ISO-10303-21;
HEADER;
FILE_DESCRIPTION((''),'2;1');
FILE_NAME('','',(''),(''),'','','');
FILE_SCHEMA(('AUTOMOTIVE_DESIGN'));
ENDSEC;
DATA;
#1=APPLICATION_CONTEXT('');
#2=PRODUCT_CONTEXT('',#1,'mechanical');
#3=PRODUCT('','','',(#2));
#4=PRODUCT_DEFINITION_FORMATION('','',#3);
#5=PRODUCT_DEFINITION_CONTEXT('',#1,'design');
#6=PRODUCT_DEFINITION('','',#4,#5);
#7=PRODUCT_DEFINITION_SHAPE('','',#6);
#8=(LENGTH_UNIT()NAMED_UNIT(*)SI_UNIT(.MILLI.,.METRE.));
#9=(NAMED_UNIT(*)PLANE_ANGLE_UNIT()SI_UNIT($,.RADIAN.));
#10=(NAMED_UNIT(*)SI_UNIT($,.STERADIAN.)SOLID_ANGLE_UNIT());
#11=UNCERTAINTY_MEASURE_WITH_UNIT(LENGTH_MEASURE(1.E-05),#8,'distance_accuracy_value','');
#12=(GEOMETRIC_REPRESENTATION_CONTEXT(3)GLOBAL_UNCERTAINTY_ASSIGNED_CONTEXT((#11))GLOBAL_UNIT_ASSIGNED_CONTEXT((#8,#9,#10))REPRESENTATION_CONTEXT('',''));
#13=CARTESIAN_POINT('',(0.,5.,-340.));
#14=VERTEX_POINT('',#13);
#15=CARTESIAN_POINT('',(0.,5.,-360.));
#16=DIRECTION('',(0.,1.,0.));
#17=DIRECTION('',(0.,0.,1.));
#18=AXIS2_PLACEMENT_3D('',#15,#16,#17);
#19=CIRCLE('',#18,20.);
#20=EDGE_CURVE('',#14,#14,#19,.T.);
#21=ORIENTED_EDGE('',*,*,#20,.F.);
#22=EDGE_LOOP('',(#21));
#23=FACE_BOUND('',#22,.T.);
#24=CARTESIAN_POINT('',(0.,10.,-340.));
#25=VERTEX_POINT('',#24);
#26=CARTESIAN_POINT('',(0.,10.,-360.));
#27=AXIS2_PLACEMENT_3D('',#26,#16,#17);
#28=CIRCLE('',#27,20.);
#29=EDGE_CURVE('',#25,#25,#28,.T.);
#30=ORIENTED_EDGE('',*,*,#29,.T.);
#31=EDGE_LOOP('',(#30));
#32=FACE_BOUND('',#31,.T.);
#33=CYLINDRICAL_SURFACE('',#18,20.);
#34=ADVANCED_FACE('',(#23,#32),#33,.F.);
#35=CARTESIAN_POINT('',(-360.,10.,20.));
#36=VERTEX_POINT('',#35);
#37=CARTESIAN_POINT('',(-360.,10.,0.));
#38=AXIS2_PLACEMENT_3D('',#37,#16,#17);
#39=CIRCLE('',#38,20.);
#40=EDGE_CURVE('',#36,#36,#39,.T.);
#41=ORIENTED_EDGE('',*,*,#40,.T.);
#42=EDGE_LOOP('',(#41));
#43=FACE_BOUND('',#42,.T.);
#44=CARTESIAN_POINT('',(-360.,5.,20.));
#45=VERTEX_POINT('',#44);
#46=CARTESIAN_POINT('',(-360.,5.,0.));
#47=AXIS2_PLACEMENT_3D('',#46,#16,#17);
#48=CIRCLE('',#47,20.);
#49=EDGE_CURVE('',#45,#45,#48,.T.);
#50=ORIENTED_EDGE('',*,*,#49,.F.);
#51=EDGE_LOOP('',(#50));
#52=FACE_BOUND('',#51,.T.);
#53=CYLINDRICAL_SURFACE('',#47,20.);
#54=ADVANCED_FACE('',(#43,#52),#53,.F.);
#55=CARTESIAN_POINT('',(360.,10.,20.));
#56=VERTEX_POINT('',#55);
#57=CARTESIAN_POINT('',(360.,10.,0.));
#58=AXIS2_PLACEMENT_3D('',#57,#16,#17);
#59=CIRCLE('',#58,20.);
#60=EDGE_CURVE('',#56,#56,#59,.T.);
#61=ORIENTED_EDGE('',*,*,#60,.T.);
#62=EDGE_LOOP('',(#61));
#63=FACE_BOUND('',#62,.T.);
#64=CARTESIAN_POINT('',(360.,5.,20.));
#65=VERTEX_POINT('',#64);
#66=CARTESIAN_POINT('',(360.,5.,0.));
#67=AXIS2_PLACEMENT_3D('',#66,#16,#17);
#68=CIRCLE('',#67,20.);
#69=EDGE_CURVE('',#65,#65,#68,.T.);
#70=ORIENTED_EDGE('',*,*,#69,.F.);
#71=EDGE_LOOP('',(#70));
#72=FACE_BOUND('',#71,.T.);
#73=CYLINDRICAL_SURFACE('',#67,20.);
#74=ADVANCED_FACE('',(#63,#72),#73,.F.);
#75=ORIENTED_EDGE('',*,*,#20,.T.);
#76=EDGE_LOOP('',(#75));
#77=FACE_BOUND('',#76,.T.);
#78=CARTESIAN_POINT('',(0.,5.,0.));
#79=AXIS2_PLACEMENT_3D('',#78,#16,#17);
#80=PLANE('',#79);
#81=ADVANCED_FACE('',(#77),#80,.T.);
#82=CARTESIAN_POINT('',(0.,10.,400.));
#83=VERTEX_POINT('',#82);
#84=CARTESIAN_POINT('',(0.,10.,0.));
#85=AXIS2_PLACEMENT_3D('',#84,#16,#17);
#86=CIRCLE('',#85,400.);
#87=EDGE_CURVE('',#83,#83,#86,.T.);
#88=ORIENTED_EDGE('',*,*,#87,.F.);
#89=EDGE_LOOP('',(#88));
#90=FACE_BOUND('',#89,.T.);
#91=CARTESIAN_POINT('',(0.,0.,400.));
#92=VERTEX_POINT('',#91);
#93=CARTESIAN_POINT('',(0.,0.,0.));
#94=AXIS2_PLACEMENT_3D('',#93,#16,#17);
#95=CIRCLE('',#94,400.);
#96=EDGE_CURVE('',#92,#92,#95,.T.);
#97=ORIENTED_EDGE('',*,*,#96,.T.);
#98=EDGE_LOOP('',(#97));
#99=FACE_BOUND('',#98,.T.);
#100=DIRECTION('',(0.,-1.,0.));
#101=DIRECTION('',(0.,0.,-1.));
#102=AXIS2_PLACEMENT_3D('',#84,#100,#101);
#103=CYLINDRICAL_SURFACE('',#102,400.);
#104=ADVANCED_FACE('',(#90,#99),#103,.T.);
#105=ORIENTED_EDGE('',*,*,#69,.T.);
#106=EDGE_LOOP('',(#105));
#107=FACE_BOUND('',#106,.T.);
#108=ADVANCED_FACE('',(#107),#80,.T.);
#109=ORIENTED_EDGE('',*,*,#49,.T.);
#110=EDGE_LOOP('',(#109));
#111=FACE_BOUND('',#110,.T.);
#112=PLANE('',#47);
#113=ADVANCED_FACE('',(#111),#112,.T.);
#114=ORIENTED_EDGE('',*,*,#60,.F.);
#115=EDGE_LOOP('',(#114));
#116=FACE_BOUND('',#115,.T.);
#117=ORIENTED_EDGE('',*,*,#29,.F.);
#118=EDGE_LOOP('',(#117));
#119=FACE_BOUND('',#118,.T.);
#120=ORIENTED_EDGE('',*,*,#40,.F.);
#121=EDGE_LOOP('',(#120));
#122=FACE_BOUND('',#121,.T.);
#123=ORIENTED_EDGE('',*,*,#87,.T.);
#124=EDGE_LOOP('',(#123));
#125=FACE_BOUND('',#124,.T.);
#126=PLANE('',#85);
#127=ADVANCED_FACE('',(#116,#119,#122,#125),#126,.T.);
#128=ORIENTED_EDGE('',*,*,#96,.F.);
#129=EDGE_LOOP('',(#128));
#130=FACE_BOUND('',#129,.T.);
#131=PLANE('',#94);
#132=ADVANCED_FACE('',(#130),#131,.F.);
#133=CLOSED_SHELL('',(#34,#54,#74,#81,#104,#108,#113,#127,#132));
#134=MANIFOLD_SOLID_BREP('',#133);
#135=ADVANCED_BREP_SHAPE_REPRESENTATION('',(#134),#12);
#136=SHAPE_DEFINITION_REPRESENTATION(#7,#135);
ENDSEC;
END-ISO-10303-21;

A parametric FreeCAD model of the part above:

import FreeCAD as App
import Part
import Sketcher

V = App.Vector
Q = App.Units.Quantity

doc = App.newDocument("Part")
params = doc.addObject("Spreadsheet::Sheet", "Params")
for row, (alias, value) in enumerate([
    ("sketch1_diameter", "800 mm"),
    ("pad1_length", "10 mm"),
    ("sketch2_diameter", "40 mm"),
    ("pocket1_length", "5 mm"),
], start=1):
    params.set(f"A{row}", alias)
    params.set(f"B{row}", "=" + value)
    params.setAlias(f"B{row}", alias)

body = doc.addObject("PartDesign::Body", "Body")

# Sketch on XZ plane
sketch1 = body.newObject("Sketcher::SketchObject", "Sketch")
sketch1.AttachmentSupport = (doc.getObject("XZ_Plane"), [""])
sketch1.MapMode = "FlatFace"
sketch1.addGeometry(Part.Circle(V(0, 0, 0), V(0, 0, 1), 400), False)
sketch1.addConstraint(Sketcher.Constraint("Coincident", 0, 3, -1, 1))
sketch1.addConstraint(Sketcher.Constraint("Diameter", 0, Q("800 mm")))
sketch1.setExpression("Constraints[1]", "Params.sketch1_diameter")
pad1 = body.newObject("PartDesign::Pad", "Pad")
pad1.Profile = sketch1
pad1.setExpression("Length", "Params.pad1_length")
pad1.Reversed = True

# Sketch on XZ plane
sketch2 = body.newObject("Sketcher::SketchObject", "Sketch001")
sketch2.AttachmentSupport = (doc.getObject("XZ_Plane"), [""])
sketch2.MapMode = "FlatFace"
sketch2.AttachmentOffset = App.Placement(V(0, 0, -10), App.Rotation())
sketch2.addGeometry(Part.Circle(V(360, 0, 0), V(0, 0, 1), 20), False)
sketch2.addGeometry(Part.Circle(V(-360, 0, 0), V(0, 0, 1), 20), False)
sketch2.addGeometry(Part.Circle(V(0, -360, 0), V(0, 0, 1), 20), False)
sketch2.addConstraint(Sketcher.Constraint("Equal", 0, 1))
sketch2.addConstraint(Sketcher.Constraint("Equal", 1, 2))
sketch2.addConstraint(Sketcher.Constraint("Symmetric", 0, 3, 1, 3, -1, 1))
sketch2.addConstraint(Sketcher.Constraint("PointOnObject", 0, 3, -1))
sketch2.addConstraint(Sketcher.Constraint("PointOnObject", 2, 3, -2))
sketch2.addConstraint(Sketcher.Constraint("Diameter", 0, Q("40 mm")))
sketch2.addConstraint(Sketcher.Constraint("DistanceX", -1, 1, 0, 3, Q("360 mm")))
sketch2.addConstraint(Sketcher.Constraint("DistanceY", 2, 3, -1, 1, Q("360 mm")))
sketch2.setExpression("Constraints[5]", "Params.sketch2_diameter")
pocket1 = body.newObject("PartDesign::Pocket", "Pocket")
pocket1.Profile = sketch2
pocket1.setExpression("Length", "Params.pocket1_length")
pocket1.Reversed = True

doc.recompute()
